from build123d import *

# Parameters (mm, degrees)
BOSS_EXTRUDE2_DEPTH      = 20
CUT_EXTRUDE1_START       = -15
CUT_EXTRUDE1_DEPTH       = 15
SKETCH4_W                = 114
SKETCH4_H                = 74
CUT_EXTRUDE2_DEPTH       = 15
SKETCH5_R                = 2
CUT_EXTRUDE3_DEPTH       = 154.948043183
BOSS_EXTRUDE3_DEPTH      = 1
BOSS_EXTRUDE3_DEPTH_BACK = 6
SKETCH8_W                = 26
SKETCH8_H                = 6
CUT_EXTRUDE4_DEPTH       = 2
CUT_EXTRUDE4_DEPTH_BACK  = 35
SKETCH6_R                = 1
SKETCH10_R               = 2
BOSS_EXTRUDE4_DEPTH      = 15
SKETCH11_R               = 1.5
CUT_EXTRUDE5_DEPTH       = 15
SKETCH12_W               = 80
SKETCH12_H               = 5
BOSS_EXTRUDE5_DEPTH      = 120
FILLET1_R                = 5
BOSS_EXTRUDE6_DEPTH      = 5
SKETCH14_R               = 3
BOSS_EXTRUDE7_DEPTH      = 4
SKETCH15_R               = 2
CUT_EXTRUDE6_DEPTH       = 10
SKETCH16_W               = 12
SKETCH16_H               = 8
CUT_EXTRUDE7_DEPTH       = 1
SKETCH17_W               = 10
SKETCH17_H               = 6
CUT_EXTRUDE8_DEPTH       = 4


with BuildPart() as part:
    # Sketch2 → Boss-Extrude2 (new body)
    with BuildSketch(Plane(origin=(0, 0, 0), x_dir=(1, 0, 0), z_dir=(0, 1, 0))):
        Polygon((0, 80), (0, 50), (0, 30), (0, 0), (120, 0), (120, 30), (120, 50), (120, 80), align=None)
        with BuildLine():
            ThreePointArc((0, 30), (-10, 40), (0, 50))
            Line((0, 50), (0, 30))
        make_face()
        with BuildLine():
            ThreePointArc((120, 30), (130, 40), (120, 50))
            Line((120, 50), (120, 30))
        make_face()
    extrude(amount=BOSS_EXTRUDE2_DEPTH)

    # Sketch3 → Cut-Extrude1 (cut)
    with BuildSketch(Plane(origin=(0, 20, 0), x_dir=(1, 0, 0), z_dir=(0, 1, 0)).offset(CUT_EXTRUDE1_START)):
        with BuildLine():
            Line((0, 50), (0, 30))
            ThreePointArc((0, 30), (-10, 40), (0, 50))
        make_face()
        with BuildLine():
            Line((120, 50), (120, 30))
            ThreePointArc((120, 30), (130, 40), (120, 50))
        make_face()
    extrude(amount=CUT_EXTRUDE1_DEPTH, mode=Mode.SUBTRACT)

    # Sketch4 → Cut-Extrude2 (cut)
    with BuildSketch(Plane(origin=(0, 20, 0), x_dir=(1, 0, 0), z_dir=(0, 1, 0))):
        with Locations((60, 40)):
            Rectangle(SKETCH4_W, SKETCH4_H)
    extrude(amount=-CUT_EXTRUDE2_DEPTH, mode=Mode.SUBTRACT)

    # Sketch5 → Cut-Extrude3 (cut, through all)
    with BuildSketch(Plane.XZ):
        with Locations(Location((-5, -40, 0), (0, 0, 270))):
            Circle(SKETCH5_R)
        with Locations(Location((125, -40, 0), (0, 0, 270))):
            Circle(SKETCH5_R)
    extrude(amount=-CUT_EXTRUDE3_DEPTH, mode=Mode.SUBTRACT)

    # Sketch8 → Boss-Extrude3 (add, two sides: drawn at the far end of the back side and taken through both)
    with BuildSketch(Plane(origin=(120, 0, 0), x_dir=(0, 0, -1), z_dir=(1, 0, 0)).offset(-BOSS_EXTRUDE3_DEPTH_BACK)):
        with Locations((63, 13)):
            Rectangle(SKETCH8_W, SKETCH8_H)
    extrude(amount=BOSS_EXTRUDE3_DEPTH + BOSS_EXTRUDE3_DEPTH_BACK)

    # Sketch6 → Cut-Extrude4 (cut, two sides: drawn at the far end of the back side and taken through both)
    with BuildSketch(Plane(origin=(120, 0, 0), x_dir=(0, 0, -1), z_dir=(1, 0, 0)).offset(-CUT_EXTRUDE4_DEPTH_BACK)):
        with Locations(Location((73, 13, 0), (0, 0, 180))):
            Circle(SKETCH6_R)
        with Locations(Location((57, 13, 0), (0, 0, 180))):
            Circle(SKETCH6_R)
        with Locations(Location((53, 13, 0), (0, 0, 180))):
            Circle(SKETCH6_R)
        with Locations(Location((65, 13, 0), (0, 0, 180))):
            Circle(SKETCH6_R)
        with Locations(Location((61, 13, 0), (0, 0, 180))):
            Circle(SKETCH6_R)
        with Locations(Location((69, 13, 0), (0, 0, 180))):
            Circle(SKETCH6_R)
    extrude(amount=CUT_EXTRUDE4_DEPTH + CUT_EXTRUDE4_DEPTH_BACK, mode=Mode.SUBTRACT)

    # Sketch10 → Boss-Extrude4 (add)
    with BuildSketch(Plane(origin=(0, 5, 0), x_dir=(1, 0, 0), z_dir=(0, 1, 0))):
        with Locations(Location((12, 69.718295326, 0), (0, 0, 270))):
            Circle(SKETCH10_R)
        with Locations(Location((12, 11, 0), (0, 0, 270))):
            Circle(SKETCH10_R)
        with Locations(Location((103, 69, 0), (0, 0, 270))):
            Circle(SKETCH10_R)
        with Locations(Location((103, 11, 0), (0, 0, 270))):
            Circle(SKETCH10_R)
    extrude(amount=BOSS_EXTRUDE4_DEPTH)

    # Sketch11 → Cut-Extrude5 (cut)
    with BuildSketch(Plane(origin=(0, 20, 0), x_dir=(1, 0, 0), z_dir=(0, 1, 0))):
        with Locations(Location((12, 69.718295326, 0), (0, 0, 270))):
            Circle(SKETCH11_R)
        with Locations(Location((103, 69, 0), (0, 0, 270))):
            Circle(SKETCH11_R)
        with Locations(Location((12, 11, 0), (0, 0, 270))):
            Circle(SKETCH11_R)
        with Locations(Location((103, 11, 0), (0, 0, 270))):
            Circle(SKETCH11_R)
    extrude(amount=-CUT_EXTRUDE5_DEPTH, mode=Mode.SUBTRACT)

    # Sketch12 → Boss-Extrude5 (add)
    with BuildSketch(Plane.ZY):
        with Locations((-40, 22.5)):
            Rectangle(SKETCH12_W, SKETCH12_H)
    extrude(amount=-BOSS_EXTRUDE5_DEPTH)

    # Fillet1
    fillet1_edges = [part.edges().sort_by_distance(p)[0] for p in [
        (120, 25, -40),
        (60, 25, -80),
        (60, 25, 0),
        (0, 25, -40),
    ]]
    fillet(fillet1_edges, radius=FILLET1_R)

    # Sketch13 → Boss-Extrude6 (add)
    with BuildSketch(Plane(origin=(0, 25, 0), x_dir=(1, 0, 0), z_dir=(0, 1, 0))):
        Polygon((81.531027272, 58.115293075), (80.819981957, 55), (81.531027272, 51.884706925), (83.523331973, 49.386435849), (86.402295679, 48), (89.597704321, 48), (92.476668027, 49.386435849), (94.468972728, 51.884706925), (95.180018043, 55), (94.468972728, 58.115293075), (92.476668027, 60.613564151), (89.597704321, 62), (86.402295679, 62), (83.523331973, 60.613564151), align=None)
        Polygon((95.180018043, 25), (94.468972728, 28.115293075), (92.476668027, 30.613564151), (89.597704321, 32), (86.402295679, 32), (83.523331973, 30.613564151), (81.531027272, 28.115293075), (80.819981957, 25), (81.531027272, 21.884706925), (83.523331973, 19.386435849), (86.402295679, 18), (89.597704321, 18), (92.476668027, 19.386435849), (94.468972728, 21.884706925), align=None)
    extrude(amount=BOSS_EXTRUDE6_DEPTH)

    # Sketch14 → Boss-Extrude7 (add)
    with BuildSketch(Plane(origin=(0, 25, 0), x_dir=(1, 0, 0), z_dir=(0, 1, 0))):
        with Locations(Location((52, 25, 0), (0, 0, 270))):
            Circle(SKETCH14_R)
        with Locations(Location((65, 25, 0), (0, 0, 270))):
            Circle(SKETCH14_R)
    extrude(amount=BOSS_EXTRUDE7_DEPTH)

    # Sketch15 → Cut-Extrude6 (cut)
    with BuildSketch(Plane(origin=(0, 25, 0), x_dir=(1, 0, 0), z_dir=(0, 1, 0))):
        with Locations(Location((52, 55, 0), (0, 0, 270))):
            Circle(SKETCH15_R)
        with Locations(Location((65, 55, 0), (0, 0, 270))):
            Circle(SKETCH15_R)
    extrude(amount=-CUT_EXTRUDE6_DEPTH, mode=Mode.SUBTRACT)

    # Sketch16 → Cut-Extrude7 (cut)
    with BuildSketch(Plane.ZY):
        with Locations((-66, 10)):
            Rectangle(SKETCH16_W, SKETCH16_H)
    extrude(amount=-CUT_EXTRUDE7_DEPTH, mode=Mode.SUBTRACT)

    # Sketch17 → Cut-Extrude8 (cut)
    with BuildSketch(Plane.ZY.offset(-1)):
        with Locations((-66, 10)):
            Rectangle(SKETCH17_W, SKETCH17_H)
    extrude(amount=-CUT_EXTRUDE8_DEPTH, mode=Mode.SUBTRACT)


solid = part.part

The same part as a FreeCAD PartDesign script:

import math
import FreeCAD as App
import Part
import Sketcher

V = App.Vector
Q = App.Units.Quantity


def edges_at(feature, points):
    """Names of the edges that pass closest to the given points."""
    edges = feature.Shape.Edges
    near = lambda p: min(range(len(edges)), key=lambda i: edges[i].distToShape(Part.Vertex(*p))[0])
    return sorted({f"Edge{near(p) + 1}" for p in points})


def add_polygon(sketch, points):
    """Adds a closed chain of lines whose ends are joined by coincident constraints."""
    first, n = sketch.GeometryCount, len(points)
    for a, b in zip(points, points[1:] + points[:1]):
        sketch.addGeometry(Part.LineSegment(App.Vector(*a, 0), App.Vector(*b, 0)), False)
    for i in range(n):
        sketch.addConstraint(Sketcher.Constraint("Coincident", first + i, 2, first + (i + 1) % n, 1))

doc = App.newDocument("Part")
body = doc.addObject("PartDesign::Body", "Body")

# Sketch on XZ plane
sketch1 = doc.addObject("Sketcher::SketchObject", "Sketch")
body.addObject(sketch1)
sketch1.AttachmentSupport = (doc.XZ_Plane, [""])
sketch1.MapMode = "FlatFace"
sketch1.addGeometry([
    Part.LineSegment(V(0, -80, 0), V(0, -50, 0)),  # 0
    Part.ArcOfCircle(Part.Circle(V(0, -40, 0), V(0, 0, 1), 10), math.radians(90), math.radians(270)),  # 1
    Part.LineSegment(V(0, -30, 0), V(0, 0, 0)),  # 2
    Part.LineSegment(V(0, 0, 0), V(120, 0, 0)),  # 3
    Part.LineSegment(V(120, 0, 0), V(120, -30, 0)),  # 4
    Part.ArcOfCircle(Part.Circle(V(120, -40, 0), V(0, 0, 1), 10), math.radians(-90), math.radians(90)),  # 5
    Part.LineSegment(V(120, -50, 0), V(120, -80, 0)),  # 6
    Part.LineSegment(V(120, -80, 0), V(0, -80, 0)),  # 7
], False)
sketch1.addConstraint([
    Sketcher.Constraint("Coincident", 0, 2, 1, 2),
    Sketcher.Constraint("Coincident", 1, 1, 2, 1),
    Sketcher.Constraint("Coincident", 2, 2, 3, 1),
    Sketcher.Constraint("Coincident", 3, 2, 4, 1),
    Sketcher.Constraint("Coincident", 4, 2, 5, 2),
    Sketcher.Constraint("Coincident", 5, 1, 6, 1),
    Sketcher.Constraint("Coincident", 6, 2, 7, 1),
    Sketcher.Constraint("Coincident", 7, 2, 0, 1),
    Sketcher.Constraint("Vertical", 0),
    Sketcher.Constraint("Vertical", 2),
    Sketcher.Constraint("Horizontal", 3),
    Sketcher.Constraint("Vertical", 4),
    Sketcher.Constraint("Vertical", 6),
    Sketcher.Constraint("Horizontal", 7),
    Sketcher.Constraint("Coincident", 2, 2, -1, 1),
    Sketcher.Constraint("Equal", 1, 5),
    Sketcher.Constraint("PointOnObject", 1, 3, -2),
    Sketcher.Constraint("PointOnObject", 0, 2, -2),
    Sketcher.Constraint("Horizontal", 1, 3, 5, 3),
    Sketcher.Constraint("Vertical", 5, 3, 3, 2),
    Sketcher.Constraint("Vertical", 4, 2, 5, 1),
    Sketcher.Constraint("Equal", 0, 2),
    Sketcher.Constraint("Radius", 1, Q("10 mm")),
    Sketcher.Constraint("DistanceX", 3, 1, 3, 2, Q("120 mm")),
    Sketcher.Constraint("DistanceY", 0, 1, 0, 2, Q("30 mm")),
])
pad1 = doc.addObject("PartDesign::Pad", "Pad")
body.addObject(pad1)
pad1.Profile = sketch1
pad1.Length = 20
pad1.Reversed = True

# Sketch on XZ plane
sketch2 = doc.addObject("Sketcher::SketchObject", "Sketch001")
body.addObject(sketch2)
sketch2.AttachmentSupport = (doc.XZ_Plane, [""])
sketch2.MapMode = "FlatFace"
sketch2.AttachmentOffset = App.Placement(V(0, 0, -5), App.Rotation())
sketch2.addGeometry([
    Part.LineSegment(V(0, -30, 0), V(0, -50, 0)),
    Part.ArcOfCircle(Part.Circle(V(0, -40, 0), V(0, 0, 1), 10), math.radians(90), math.radians(270)),
    Part.LineSegment(V(120, -50, 0), V(120, -30, 0)),
    Part.ArcOfCircle(Part.Circle(V(120, -40, 0), V(0, 0, 1), 10), math.radians(-90), math.radians(90)),
], False)
sketch2.addConstraint([
    Sketcher.Constraint("Coincident", 0, 1, 1, 1),
    Sketcher.Constraint("Coincident", 1, 2, 0, 2),
    Sketcher.Constraint("Coincident", 2, 1, 3, 1),
    Sketcher.Constraint("Coincident", 3, 2, 2, 2),
    Sketcher.Constraint("Vertical", 0),
    Sketcher.Constraint("Vertical", 2),
    Sketcher.Constraint("Equal", 1, 3),
    Sketcher.Constraint("PointOnObject", 1, 3, -2),
    Sketcher.Constraint("PointOnObject", 0, 1, -2),
    Sketcher.Constraint("Horizontal", 1, 3, 3, 3),
    Sketcher.Constraint("Vertical", 3, 3, 2, 1),
    Sketcher.Constraint("Radius", 1, Q("10 mm")),
    Sketcher.Constraint("DistanceY", 1, 3, -1, 1, Q("40 mm")),
    Sketcher.Constraint("DistanceX", -1, 1, 3, 3, Q("120 mm")),
])
pocket1 = doc.addObject("PartDesign::Pocket", "Pocket")
body.addObject(pocket1)
pocket1.Profile = sketch2
pocket1.Length = 15

# Sketch on XZ plane
sketch3 = doc.addObject("Sketcher::SketchObject", "Sketch002")
body.addObject(sketch3)
sketch3.AttachmentSupport = (doc.XZ_Plane, [""])
sketch3.MapMode = "FlatFace"
sketch3.AttachmentOffset = App.Placement(V(0, 0, -20), App.Rotation())
add_polygon(sketch3, [(3, -77), (3, -3), (117, -3), (117, -77)])  # lines 0-3
sketch3.addConstraint([
    Sketcher.Constraint("Vertical", 0),
    Sketcher.Constraint("Horizontal", 1),
    Sketcher.Constraint("Vertical", 2),
    Sketcher.Constraint("Horizontal", 3),
    Sketcher.Constraint("DistanceX", 1, 1, 1, 2, Q("114 mm")),
    Sketcher.Constraint("DistanceY", 0, 1, 0, 2, Q("74 mm")),
    Sketcher.Constraint("DistanceX", -1, 1, 0, 2, Q("3 mm")),
    Sketcher.Constraint("DistanceY", 0, 2, -1, 1, Q("3 mm")),
])
pocket2 = doc.addObject("PartDesign::Pocket", "Pocket001")
body.addObject(pocket2)
pocket2.Profile = sketch3
pocket2.Length = 15
pocket2.Reversed = True

# Sketch on XZ plane
sketch4 = doc.addObject("Sketcher::SketchObject", "Sketch003")
body.addObject(sketch4)
sketch4.AttachmentSupport = (doc.XZ_Plane, [""])
sketch4.MapMode = "FlatFace"
sketch4.addGeometry([
    Part.Circle(V(-5, -40, 0), V(0, 0, 1), 2),
    Part.Circle(V(125, -40, 0), V(0, 0, 1), 2),
], False)
sketch4.addConstraint([
    Sketcher.Constraint("Equal", 0, 1),
    Sketcher.Constraint("Horizontal", 0, 3, 1, 3),
    Sketcher.Constraint("Diameter", 0, Q("4 mm")),
    Sketcher.Constraint("DistanceX", 0, 3, -1, 1, Q("5 mm")),
    Sketcher.Constraint("DistanceY", 0, 3, -1, 1, Q("40 mm")),
    Sketcher.Constraint("DistanceX", -1, 1, 1, 3, Q("125 mm")),
])
pocket3 = doc.addObject("PartDesign::Pocket", "Pocket002")
body.addObject(pocket3)
pocket3.Profile = sketch4
pocket3.Type = "ThroughAll"

# Sketch on YZ plane
sketch5 = doc.addObject("Sketcher::SketchObject", "Sketch004")
body.addObject(sketch5)
sketch5.AttachmentSupport = (doc.YZ_Plane, [""])
sketch5.MapMode = "FlatFace"
sketch5.AttachmentOffset = App.Placement(V(0, 0, 120), App.Rotation())
add_polygon(sketch5, [(16, -50), (10, -50), (10, -76), (16, -76)])  # lines 0-3
sketch5.addConstraint([
    Sketcher.Constraint("Horizontal", 0),
    Sketcher.Constraint("Vertical", 1),
    Sketcher.Constraint("Horizontal", 2),
    Sketcher.Constraint("Vertical", 3),
    Sketcher.Constraint("DistanceX", 0, 2, 0, 1, Q("6 mm")),
    Sketcher.Constraint("DistanceY", 1, 2, 1, 1, Q("26 mm")),
    Sketcher.Constraint("DistanceX", -1, 1, 0, 2, Q("10 mm")),
    Sketcher.Constraint("DistanceY", 0, 2, -1, 1, Q("50 mm")),
])
pad2 = doc.addObject("PartDesign::Pad", "Pad001")
body.addObject(pad2)
pad2.Profile = sketch5
pad2.Type = "TwoLengths"
pad2.Length = 1
pad2.Length2 = 6

# Sketch on YZ plane
sketch6 = doc.addObject("Sketcher::SketchObject", "Sketch005")
body.addObject(sketch6)
sketch6.AttachmentSupport = (doc.YZ_Plane, [""])
sketch6.MapMode = "FlatFace"
sketch6.AttachmentOffset = App.Placement(V(0, 0, 120), App.Rotation())
sketch6.addGeometry([
    Part.Circle(V(13, -73, 0), V(0, 0, 1), 1),  # 0
    Part.Circle(V(13, -57, 0), V(0, 0, 1), 1),  # 1
    Part.Circle(V(13, -53, 0), V(0, 0, 1), 1),  # 2
    Part.Circle(V(13, -65, 0), V(0, 0, 1), 1),  # 3
    Part.Circle(V(13, -61, 0), V(0, 0, 1), 1),  # 4
    Part.Circle(V(13, -69, 0), V(0, 0, 1), 1),  # 5
], False)
sketch6.addConstraint([
    Sketcher.Constraint("Equal", 0, 1),
    Sketcher.Constraint("Equal", 1, 2),
    Sketcher.Constraint("Equal", 2, 3),
    Sketcher.Constraint("Equal", 3, 4),
    Sketcher.Constraint("Equal", 4, 5),
    Sketcher.Constraint("Vertical", 0, 3, 1, 3),
    Sketcher.Constraint("Vertical", 1, 3, 2, 3),
    Sketcher.Constraint("Vertical", 2, 3, 3, 3),
    Sketcher.Constraint("Vertical", 3, 3, 4, 3),
    Sketcher.Constraint("Vertical", 4, 3, 5, 3),
    Sketcher.Constraint("Diameter", 0, Q("2 mm")),
    Sketcher.Constraint("DistanceX", -1, 1, 0, 3, Q("13 mm")),
    Sketcher.Constraint("DistanceY", 0, 3, -1, 1, Q("73 mm")),
    Sketcher.Constraint("DistanceY", 1, 3, -1, 1, Q("57 mm")),
    Sketcher.Constraint("DistanceY", 2, 3, -1, 1, Q("53 mm")),
    Sketcher.Constraint("DistanceY", 3, 3, -1, 1, Q("65 mm")),
    Sketcher.Constraint("DistanceY", 4, 3, -1, 1, Q("61 mm")),
    Sketcher.Constraint("DistanceY", 5, 3, -1, 1, Q("69 mm")),
])
pocket4 = doc.addObject("PartDesign::Pocket", "Pocket003")
body.addObject(pocket4)
pocket4.Profile = sketch6
pocket4.Type = "TwoLengths"
pocket4.Length = 2
pocket4.Length2 = 35
pocket4.Reversed = True

# Sketch on XZ plane
sketch7 = doc.addObject("Sketcher::SketchObject", "Sketch006")
body.addObject(sketch7)
sketch7.AttachmentSupport = (doc.XZ_Plane, [""])
sketch7.MapMode = "FlatFace"
sketch7.AttachmentOffset = App.Placement(V(0, 0, -5), App.Rotation())
sketch7.addGeometry([
    Part.Circle(V(12, -69.718295, 0), V(0, 0, 1), 2),
    Part.Circle(V(12, -11, 0), V(0, 0, 1), 2),
    Part.Circle(V(103, -69, 0), V(0, 0, 1), 2),
    Part.Circle(V(103, -11, 0), V(0, 0, 1), 2),
], False)
sketch7.addConstraint([
    Sketcher.Constraint("Equal", 0, 1),
    Sketcher.Constraint("Equal", 1, 2),
    Sketcher.Constraint("Equal", 2, 3),
    Sketcher.Constraint("Horizontal", 1, 3, 3, 3),
    Sketcher.Constraint("Vertical", 0, 3, 1, 3),
    Sketcher.Constraint("Vertical", 2, 3, 3, 3),
    Sketcher.Constraint("Diameter", 0, Q("4 mm")),
    Sketcher.Constraint("DistanceX", -1, 1, 0, 3, Q("12 mm")),
    Sketcher.Constraint("DistanceY", 1, 3, -1, 1, Q("11 mm")),
    Sketcher.Constraint("DistanceX", -1, 1, 2, 3, Q("103 mm")),
    Sketcher.Constraint("DistanceY", 2, 3, -1, 1, Q("69 mm")),
    Sketcher.Constraint("DistanceY", 0, 3, -1, 1, Q("69.718295 mm")),
])
pad3 = doc.addObject("PartDesign::Pad", "Pad002")
body.addObject(pad3)
pad3.Profile = sketch7
pad3.Length = 15
pad3.Reversed = True

# Sketch on XZ plane
sketch8 = doc.addObject("Sketcher::SketchObject", "Sketch007")
body.addObject(sketch8)
sketch8.AttachmentSupport = (doc.XZ_Plane, [""])
sketch8.MapMode = "FlatFace"
sketch8.AttachmentOffset = App.Placement(V(0, 0, -20), App.Rotation())
sketch8.addGeometry([
    Part.Circle(V(12, -69.718295, 0), V(0, 0, 1), 1.5),
    Part.Circle(V(103, -69, 0), V(0, 0, 1), 1.5),
    Part.Circle(V(12, -11, 0), V(0, 0, 1), 1.5),
    Part.Circle(V(103, -11, 0), V(0, 0, 1), 1.5),
], False)
sketch8.addConstraint([
    Sketcher.Constraint("Equal", 0, 1),
    Sketcher.Constraint("Equal", 1, 2),
    Sketcher.Constraint("Equal", 2, 3),
    Sketcher.Constraint("Horizontal", 2, 3, 3, 3),
    Sketcher.Constraint("Vertical", 0, 3, 2, 3),
    Sketcher.Constraint("Vertical", 1, 3, 3, 3),
    Sketcher.Constraint("Diameter", 0, Q("3 mm")),
    Sketcher.Constraint("DistanceX", -1, 1, 0, 3, Q("12 mm")),
    Sketcher.Constraint("DistanceX", -1, 1, 1, 3, Q("103 mm")),
    Sketcher.Constraint("DistanceY", 1, 3, -1, 1, Q("69 mm")),
    Sketcher.Constraint("DistanceY", 2, 3, -1, 1, Q("11 mm")),
    Sketcher.Constraint("DistanceY", 0, 3, -1, 1, Q("69.718295 mm")),
])
pocket5 = doc.addObject("PartDesign::Pocket", "Pocket004")
body.addObject(pocket5)
pocket5.Profile = sketch8
pocket5.Length = 15
pocket5.Reversed = True

# Sketch on YZ plane
sketch9 = doc.addObject("Sketcher::SketchObject", "Sketch008")
body.addObject(sketch9)
sketch9.AttachmentSupport = (doc.YZ_Plane, [""])
sketch9.MapMode = "FlatFace"
add_polygon(sketch9, [(25, -80), (20, -80), (20, 0), (25, 0)])  # lines 0-3
sketch9.addConstraint([
    Sketcher.Constraint("Horizontal", 0),
    Sketcher.Constraint("Vertical", 1),
    Sketcher.Constraint("Horizontal", 2),
    Sketcher.Constraint("Vertical", 3),
    Sketcher.Constraint("PointOnObject", 1, 2, -1),
    Sketcher.Constraint("DistanceX", 0, 2, 0, 1, Q("5 mm")),
    Sketcher.Constraint("DistanceY", 1, 1, 1, 2, Q("80 mm")),
    Sketcher.Constraint("DistanceX", -1, 1, 0, 2, Q("20 mm")),
])
pad4 = doc.addObject("PartDesign::Pad", "Pad003")
body.addObject(pad4)
pad4.Profile = sketch9
pad4.Length = 120
doc.recompute()

fillet = doc.addObject("PartDesign::Fillet", "Fillet")
body.addObject(fillet)
fillet.Base = (pad4, edges_at(pad4, [
    (120, 25, -40),
    (60, 25, -80),
    (60, 25, 0),
    (0, 25, -40),
]))
fillet.Radius = 5

# Sketch on XZ plane
sketch10 = doc.addObject("Sketcher::SketchObject", "Sketch009")
body.addObject(sketch10)
sketch10.AttachmentSupport = (doc.XZ_Plane, [""])
sketch10.MapMode = "FlatFace"
sketch10.AttachmentOffset = App.Placement(V(0, 0, -25), App.Rotation())
add_polygon(sketch10, [(81.531027, -58.115293), (80.819982, -55), (81.531027, -51.884707), (83.523332, -49.386436), (86.402296, -48), (89.597704, -48), (92.476668, -49.386436), (94.468973, -51.884707), (95.180018, -55), (94.468973, -58.115293), (92.476668, -60.613564), (89.597704, -62), (86.402296, -62), (83.523332, -60.613564)])  # lines 0-13
add_polygon(sketch10, [(95.180018, -25), (94.468973, -28.115293), (92.476668, -30.613564), (89.597704, -32), (86.402296, -32), (83.523332, -30.613564), (81.531027, -28.115293), (80.819982, -25), (81.531027, -21.884707), (83.523332, -19.386436), (86.402296, -18), (89.597704, -18), (92.476668, -19.386436), (94.468973, -21.884707)])  # lines 14-27
sketch10.addConstraint([
    Sketcher.Constraint("Horizontal", 4),
    Sketcher.Constraint("Horizontal", 11),
    Sketcher.Constraint("Horizontal", 17),
    Sketcher.Constraint("Horizontal", 24),
    Sketcher.Constraint("Parallel", 0, 7),
    Sketcher.Constraint("Parallel", 1, 8),
    Sketcher.Constraint("Parallel", 2, 9),
    Sketcher.Constraint("Parallel", 3, 10),
    Sketcher.Constraint("Parallel", 5, 12),
    Sketcher.Constraint("Parallel", 6, 13),
    Sketcher.Constraint("Parallel", 8, 14),
    Sketcher.Constraint("Parallel", 9, 15),
    Sketcher.Constraint("Parallel", 10, 16),
    Sketcher.Constraint("Parallel", 12, 18),
    Sketcher.Constraint("Parallel", 13, 19),
    Sketcher.Constraint("Parallel", 7, 20),
    Sketcher.Constraint("Parallel", 14, 21),
    Sketcher.Constraint("Parallel", 15, 22),
    Sketcher.Constraint("Parallel", 16, 23),
    Sketcher.Constraint("Parallel", 18, 25),
    Sketcher.Constraint("Parallel", 19, 26),
    Sketcher.Constraint("Parallel", 20, 27),
    Sketcher.Constraint("Horizontal", 2, 2, 5, 2),
    Sketcher.Constraint("Horizontal", 1, 2, 6, 2),
    Sketcher.Constraint("Horizontal", 0, 2, 7, 2),
    Sketcher.Constraint("Horizontal", 9, 2, 12, 2),
    Sketcher.Constraint("Horizontal", 8, 2, 13, 2),
    Sketcher.Constraint("Horizontal", 15, 2, 18, 2),
    Sketcher.Constraint("Horizontal", 14, 2, 19, 2),
    Sketcher.Constraint("Horizontal", 22, 2, 25, 2),
    Sketcher.Constraint("Horizontal", 21, 2, 26, 2),
    Sketcher.Constraint("Horizontal", 20, 2, 27, 2),
    Sketcher.Constraint("Vertical", 6, 2, 8, 2),
    Sketcher.Constraint("Vertical", 5, 2, 9, 2),
    Sketcher.Constraint("Vertical", 4, 2, 10, 2),
    Sketcher.Constraint("Vertical", 3, 2, 11, 2),
    Sketcher.Constraint("Vertical", 2, 2, 12, 2),
    Sketcher.Constraint("Vertical", 1, 2, 13, 2),
    Sketcher.Constraint("Vertical", 8, 2, 14, 2),
    Sketcher.Constraint("Vertical", 9, 2, 15, 2),
    Sketcher.Constraint("Vertical", 10, 2, 16, 2),
    Sketcher.Constraint("Vertical", 11, 2, 17, 2),
    Sketcher.Constraint("Vertical", 0, 2, 20, 2),
    Sketcher.Constraint("Vertical", 19, 2, 21, 2),
    Sketcher.Constraint("Vertical", 18, 2, 22, 2),
    Sketcher.Constraint("Vertical", 17, 2, 23, 2),
    Sketcher.Constraint("Equal", 1, 2),
    Sketcher.Constraint("Equal", 2, 3),
    Sketcher.Constraint("DistanceY", 0, 2, -1, 1, Q("55 mm")),
    Sketcher.Constraint("DistanceY", 3, 2, -1, 1, Q("48 mm")),
    Sketcher.Constraint("DistanceY", 16, 2, -1, 1, Q("32 mm")),
    Sketcher.Constraint("DistanceX", 4, 1, 4, 2, Q("3.195409 mm")),
    Sketcher.Constraint("Distance", 0, Q("3.195409 mm")),
    Sketcher.Constraint("DistanceX", -1, 1, 0, 2, Q("80.819982 mm")),
    Sketcher.Constraint("DistanceX", -1, 1, 2, 2, Q("83.523332 mm")),
    Sketcher.Constraint("DistanceX", -1, 1, 5, 2, Q("92.476668 mm")),
])
pad5 = doc.addObject("PartDesign::Pad", "Pad004")
body.addObject(pad5)
pad5.Profile = sketch10
pad5.Length = 5
pad5.Reversed = True

# Sketch on XZ plane
sketch11 = doc.addObject("Sketcher::SketchObject", "Sketch010")
body.addObject(sketch11)
sketch11.AttachmentSupport = (doc.XZ_Plane, [""])
sketch11.MapMode = "FlatFace"
sketch11.AttachmentOffset = App.Placement(V(0, 0, -25), App.Rotation())
sketch11.addGeometry([
    Part.Circle(V(52, -25, 0), V(0, 0, 1), 3),
    Part.Circle(V(65, -25, 0), V(0, 0, 1), 3),
], False)
sketch11.addConstraint([
    Sketcher.Constraint("Equal", 0, 1),
    Sketcher.Constraint("Horizontal", 0, 3, 1, 3),
    Sketcher.Constraint("Diameter", 0, Q("6 mm")),
    Sketcher.Constraint("DistanceX", -1, 1, 0, 3, Q("52 mm")),
    Sketcher.Constraint("DistanceY", 0, 3, -1, 1, Q("25 mm")),
    Sketcher.Constraint("DistanceX", -1, 1, 1, 3, Q("65 mm")),
])
pad6 = doc.addObject("PartDesign::Pad", "Pad005")
body.addObject(pad6)
pad6.Profile = sketch11
pad6.Length = 4
pad6.Reversed = True

# Sketch on XZ plane
sketch12 = doc.addObject("Sketcher::SketchObject", "Sketch011")
body.addObject(sketch12)
sketch12.AttachmentSupport = (doc.XZ_Plane, [""])
sketch12.MapMode = "FlatFace"
sketch12.AttachmentOffset = App.Placement(V(0, 0, -25), App.Rotation())
sketch12.addGeometry([
    Part.Circle(V(52, -55, 0), V(0, 0, 1), 2),
    Part.Circle(V(65, -55, 0), V(0, 0, 1), 2),
], False)
sketch12.addConstraint([
    Sketcher.Constraint("Equal", 0, 1),
    Sketcher.Constraint("Horizontal", 0, 3, 1, 3),
    Sketcher.Constraint("Diameter", 0, Q("4 mm")),
    Sketcher.Constraint("DistanceX", -1, 1, 0, 3, Q("52 mm")),
    Sketcher.Constraint("DistanceY", 0, 3, -1, 1, Q("55 mm")),
    Sketcher.Constraint("DistanceX", -1, 1, 1, 3, Q("65 mm")),
])
pocket6 = doc.addObject("PartDesign::Pocket", "Pocket005")
body.addObject(pocket6)
pocket6.Profile = sketch12
pocket6.Length = 10
pocket6.Reversed = True

# Sketch on YZ plane
sketch13 = doc.addObject("Sketcher::SketchObject", "Sketch012")
body.addObject(sketch13)
sketch13.AttachmentSupport = (doc.YZ_Plane, [""])
sketch13.MapMode = "FlatFace"
add_polygon(sketch13, [(14, -72), (6, -72), (6, -60), (14, -60)])  # lines 0-3
sketch13.addConstraint([
    Sketcher.Constraint("Horizontal", 0),
    Sketcher.Constraint("Vertical", 1),
    Sketcher.Constraint("Horizontal", 2),
    Sketcher.Constraint("Vertical", 3),
    Sketcher.Constraint("DistanceX", 0, 2, 0, 1, Q("8 mm")),
    Sketcher.Constraint("DistanceY", 1, 1, 1, 2, Q("12 mm")),
    Sketcher.Constraint("DistanceX", -1, 1, 0, 2, Q("6 mm")),
    Sketcher.Constraint("DistanceY", 0, 2, -1, 1, Q("72 mm")),
])
pocket7 = doc.addObject("PartDesign::Pocket", "Pocket006")
body.addObject(pocket7)
pocket7.Profile = sketch13
pocket7.Length = 1
pocket7.Reversed = True

# Sketch on YZ plane
sketch14 = doc.addObject("Sketcher::SketchObject", "Sketch013")
body.addObject(sketch14)
sketch14.AttachmentSupport = (doc.YZ_Plane, [""])
sketch14.MapMode = "FlatFace"
sketch14.AttachmentOffset = App.Placement(V(0, 0, 1), App.Rotation())
add_polygon(sketch14, [(13, -71), (7, -71), (7, -61), (13, -61)])  # lines 0-3
sketch14.addConstraint([
    Sketcher.Constraint("Horizontal", 0),
    Sketcher.Constraint("Vertical", 1),
    Sketcher.Constraint("Horizontal", 2),
    Sketcher.Constraint("Vertical", 3),
    Sketcher.Constraint("DistanceX", 0, 2, 0, 1, Q("6 mm")),
    Sketcher.Constraint("DistanceY", 1, 1, 1, 2, Q("10 mm")),
    Sketcher.Constraint("DistanceX", -1, 1, 0, 2, Q("7 mm")),
    Sketcher.Constraint("DistanceY", 0, 2, -1, 1, Q("71 mm")),
])
pocket8 = doc.addObject("PartDesign::Pocket", "Pocket007")
body.addObject(pocket8)
pocket8.Profile = sketch14
pocket8.Length = 4
pocket8.Reversed = True

doc.recompute()
